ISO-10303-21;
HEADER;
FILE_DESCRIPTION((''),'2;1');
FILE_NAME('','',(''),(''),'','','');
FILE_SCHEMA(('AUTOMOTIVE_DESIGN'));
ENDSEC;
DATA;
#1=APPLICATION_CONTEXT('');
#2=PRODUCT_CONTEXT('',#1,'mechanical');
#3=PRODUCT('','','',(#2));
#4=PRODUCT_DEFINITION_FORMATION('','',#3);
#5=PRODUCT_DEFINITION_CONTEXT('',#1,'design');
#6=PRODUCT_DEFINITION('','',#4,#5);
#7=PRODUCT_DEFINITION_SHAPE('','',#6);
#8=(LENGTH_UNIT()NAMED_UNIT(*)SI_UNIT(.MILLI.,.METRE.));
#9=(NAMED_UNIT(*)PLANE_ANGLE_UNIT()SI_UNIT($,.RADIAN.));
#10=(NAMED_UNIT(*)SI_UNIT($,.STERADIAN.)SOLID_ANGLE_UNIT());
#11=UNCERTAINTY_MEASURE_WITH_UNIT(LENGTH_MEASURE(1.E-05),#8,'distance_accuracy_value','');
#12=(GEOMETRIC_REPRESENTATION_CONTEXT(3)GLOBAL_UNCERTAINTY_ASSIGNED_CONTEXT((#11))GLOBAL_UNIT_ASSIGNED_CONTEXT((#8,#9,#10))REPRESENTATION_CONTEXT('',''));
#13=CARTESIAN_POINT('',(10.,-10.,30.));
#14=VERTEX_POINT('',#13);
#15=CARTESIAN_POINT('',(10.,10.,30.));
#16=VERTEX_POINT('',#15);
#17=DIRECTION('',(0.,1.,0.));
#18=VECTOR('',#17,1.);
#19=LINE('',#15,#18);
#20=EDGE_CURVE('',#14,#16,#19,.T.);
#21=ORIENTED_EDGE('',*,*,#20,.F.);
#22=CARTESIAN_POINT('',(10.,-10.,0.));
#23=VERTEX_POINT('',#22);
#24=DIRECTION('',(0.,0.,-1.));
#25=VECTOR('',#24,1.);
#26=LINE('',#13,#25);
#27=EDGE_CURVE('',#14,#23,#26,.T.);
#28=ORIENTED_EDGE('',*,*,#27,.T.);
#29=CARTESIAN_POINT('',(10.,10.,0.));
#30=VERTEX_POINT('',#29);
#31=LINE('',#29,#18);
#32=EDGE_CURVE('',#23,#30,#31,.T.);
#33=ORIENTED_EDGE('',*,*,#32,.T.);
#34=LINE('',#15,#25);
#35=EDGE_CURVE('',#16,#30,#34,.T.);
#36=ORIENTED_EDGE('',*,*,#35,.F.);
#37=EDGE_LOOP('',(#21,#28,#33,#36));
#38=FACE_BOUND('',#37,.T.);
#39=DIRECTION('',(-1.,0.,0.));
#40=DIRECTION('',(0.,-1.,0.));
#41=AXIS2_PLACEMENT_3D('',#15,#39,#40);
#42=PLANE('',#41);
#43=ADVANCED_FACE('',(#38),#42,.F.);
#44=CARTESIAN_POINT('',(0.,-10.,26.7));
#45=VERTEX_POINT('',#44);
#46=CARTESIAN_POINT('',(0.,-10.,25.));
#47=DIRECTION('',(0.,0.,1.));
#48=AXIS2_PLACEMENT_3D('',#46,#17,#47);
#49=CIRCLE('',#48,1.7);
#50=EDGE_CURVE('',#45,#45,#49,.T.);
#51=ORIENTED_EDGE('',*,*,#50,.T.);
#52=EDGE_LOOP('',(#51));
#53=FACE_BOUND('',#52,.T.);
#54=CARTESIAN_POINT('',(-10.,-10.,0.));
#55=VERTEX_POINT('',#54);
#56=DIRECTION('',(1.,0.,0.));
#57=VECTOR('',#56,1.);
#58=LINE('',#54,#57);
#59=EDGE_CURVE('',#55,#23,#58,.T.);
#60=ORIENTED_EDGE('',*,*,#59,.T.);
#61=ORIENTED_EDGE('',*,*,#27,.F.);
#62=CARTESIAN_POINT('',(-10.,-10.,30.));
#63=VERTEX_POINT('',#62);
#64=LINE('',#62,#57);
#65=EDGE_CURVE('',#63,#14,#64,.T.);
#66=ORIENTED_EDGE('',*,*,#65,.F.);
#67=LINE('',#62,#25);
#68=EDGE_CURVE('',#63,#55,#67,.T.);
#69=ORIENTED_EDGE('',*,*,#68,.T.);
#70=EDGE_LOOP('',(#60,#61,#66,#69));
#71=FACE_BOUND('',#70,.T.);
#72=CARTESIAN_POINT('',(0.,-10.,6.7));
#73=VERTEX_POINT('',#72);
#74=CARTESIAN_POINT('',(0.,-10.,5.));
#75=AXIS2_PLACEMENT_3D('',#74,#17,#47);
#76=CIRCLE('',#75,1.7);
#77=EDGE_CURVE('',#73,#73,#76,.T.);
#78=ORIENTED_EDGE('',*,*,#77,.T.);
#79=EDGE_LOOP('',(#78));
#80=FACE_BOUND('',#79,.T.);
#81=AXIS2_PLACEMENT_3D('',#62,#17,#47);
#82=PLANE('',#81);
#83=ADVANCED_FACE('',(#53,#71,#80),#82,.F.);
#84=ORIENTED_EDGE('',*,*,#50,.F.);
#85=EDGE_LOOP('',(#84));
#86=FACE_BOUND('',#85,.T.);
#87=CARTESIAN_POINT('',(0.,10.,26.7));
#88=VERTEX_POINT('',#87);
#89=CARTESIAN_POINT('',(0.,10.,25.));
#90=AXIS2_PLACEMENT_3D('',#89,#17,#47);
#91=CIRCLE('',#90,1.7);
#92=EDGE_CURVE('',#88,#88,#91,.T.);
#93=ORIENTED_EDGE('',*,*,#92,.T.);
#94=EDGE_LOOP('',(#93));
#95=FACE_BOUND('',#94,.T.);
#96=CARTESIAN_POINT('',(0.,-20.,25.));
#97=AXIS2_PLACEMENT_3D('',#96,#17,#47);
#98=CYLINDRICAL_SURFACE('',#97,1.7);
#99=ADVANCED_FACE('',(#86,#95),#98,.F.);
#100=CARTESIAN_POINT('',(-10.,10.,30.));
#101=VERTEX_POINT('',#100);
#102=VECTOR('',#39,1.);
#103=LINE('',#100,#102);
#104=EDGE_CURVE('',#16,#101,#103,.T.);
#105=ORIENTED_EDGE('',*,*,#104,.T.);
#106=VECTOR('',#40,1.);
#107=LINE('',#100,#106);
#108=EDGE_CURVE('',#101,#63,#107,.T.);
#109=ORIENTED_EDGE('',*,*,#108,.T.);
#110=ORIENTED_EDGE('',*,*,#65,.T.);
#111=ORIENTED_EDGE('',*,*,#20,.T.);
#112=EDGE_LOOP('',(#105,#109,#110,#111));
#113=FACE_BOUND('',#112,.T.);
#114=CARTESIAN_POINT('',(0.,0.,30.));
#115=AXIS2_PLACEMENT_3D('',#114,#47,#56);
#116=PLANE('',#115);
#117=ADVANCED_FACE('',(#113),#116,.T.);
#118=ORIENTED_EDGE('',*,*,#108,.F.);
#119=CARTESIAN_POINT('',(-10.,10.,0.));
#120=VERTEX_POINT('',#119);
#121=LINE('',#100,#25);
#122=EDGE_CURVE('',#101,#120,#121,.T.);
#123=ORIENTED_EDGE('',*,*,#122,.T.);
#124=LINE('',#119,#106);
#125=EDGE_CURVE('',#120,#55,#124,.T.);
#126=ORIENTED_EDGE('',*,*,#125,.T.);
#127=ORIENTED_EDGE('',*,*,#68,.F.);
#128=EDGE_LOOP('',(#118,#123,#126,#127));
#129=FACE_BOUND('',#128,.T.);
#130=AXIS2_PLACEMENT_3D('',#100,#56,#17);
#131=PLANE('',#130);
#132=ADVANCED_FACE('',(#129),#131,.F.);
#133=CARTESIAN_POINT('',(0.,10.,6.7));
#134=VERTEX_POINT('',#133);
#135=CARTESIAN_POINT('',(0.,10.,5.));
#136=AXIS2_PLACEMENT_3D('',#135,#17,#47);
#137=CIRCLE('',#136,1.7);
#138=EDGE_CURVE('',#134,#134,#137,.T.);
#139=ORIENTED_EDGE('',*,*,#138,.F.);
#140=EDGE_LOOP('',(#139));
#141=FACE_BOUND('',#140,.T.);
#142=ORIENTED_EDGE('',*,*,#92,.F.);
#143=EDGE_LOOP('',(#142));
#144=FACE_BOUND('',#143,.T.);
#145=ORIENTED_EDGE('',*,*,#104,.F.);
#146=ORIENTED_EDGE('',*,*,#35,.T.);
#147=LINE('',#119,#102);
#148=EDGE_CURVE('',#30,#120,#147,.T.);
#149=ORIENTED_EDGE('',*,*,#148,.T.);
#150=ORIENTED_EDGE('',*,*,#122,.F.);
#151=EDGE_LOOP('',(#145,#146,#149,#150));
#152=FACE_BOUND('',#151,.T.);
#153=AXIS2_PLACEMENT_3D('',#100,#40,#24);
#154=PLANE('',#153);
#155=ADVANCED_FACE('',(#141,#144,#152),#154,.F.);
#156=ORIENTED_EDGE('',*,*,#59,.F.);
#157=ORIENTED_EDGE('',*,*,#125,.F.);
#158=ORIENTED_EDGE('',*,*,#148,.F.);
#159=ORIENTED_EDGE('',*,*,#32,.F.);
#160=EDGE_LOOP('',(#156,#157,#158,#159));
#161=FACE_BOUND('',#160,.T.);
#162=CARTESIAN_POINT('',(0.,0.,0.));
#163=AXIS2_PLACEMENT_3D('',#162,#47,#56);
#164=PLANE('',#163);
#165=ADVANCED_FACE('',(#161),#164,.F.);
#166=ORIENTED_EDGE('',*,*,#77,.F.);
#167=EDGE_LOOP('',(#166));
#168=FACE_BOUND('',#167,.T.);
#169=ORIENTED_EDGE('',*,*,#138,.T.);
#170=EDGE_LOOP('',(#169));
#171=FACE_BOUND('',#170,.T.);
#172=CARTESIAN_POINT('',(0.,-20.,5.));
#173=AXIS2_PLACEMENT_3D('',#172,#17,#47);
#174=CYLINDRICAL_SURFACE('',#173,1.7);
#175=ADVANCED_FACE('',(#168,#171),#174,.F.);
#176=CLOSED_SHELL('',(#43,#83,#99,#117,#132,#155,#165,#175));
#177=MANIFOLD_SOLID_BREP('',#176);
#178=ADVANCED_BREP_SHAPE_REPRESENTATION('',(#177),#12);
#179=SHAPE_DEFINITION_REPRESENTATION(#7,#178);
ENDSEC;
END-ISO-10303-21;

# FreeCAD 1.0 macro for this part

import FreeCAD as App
import Part
import Sketcher
from FreeCAD import Vector
Q = App.Units.Quantity

doc = App.newDocument("Part")
body = doc.addObject("PartDesign::Body", "Body")

sketch1 = body.newObject("Sketcher::SketchObject", "Sketch")
sketch1.AttachmentSupport = (doc.getObject("XY_Plane"), [""])
sketch1.MapMode = "FlatFace"
sketch1.addGeometry([
    Part.LineSegment(Vector(-10, 10, 0), Vector(-10, -10, 0)),
    Part.LineSegment(Vector(-10, -10, 0), Vector(10, -10, 0)),
    Part.LineSegment(Vector(10, -10, 0), Vector(10, 10, 0)),
    Part.LineSegment(Vector(10, 10, 0), Vector(-10, 10, 0)),
], False)
sketch1.addConstraint([
    Sketcher.Constraint("Coincident", 0, 2, 1, 1),
    Sketcher.Constraint("Coincident", 1, 2, 2, 1),
    Sketcher.Constraint("Coincident", 2, 2, 3, 1),
    Sketcher.Constraint("Coincident", 3, 2, 0, 1),
    Sketcher.Constraint("Vertical", 0),
    Sketcher.Constraint("Horizontal", 1),
    Sketcher.Constraint("Vertical", 2),
    Sketcher.Constraint("Horizontal", 3),
    Sketcher.Constraint("Symmetric", 0, 2, 2, 2, -1, 1),
    Sketcher.Constraint("Equal", 3, 0),
    Sketcher.Constraint("DistanceX", 1, 1, 1, 2, Q("20 mm")),
])
pad1 = body.newObject("PartDesign::Pad", "Pad")
pad1.Profile = sketch1
pad1.Length = 30

sketch2 = body.newObject("Sketcher::SketchObject", "Sketch001")
sketch2.AttachmentSupport = (doc.getObject("XZ_Plane"), [""])
sketch2.MapMode = "FlatFace"
sketch2.AttachmentOffset = App.Placement(Vector(0, 0, -10), App.Rotation())
sketch2.addGeometry([
    Part.Circle(Vector(0, 5, 0), Vector(0, 0, 1), 1.7),
    Part.Circle(Vector(0, 25, 0), Vector(0, 0, 1), 1.7),
], False)
sketch2.addConstraint([
    Sketcher.Constraint("Equal", 0, 1),
    Sketcher.Constraint("PointOnObject", 0, 3, -2),
    Sketcher.Constraint("PointOnObject", 1, 3, -2),
    Sketcher.Constraint("Diameter", 0, Q("3.4 mm")),
    Sketcher.Constraint("DistanceY", -1, 1, 0, 3, Q("5 mm")),
    Sketcher.Constraint("DistanceY", -1, 1, 1, 3, Q("25 mm")),
])
pocket1 = body.newObject("PartDesign::Pocket", "Pocket")
pocket1.Profile = sketch2
pocket1.Length = 30
pocket1.Reversed = True

doc.recompute()
